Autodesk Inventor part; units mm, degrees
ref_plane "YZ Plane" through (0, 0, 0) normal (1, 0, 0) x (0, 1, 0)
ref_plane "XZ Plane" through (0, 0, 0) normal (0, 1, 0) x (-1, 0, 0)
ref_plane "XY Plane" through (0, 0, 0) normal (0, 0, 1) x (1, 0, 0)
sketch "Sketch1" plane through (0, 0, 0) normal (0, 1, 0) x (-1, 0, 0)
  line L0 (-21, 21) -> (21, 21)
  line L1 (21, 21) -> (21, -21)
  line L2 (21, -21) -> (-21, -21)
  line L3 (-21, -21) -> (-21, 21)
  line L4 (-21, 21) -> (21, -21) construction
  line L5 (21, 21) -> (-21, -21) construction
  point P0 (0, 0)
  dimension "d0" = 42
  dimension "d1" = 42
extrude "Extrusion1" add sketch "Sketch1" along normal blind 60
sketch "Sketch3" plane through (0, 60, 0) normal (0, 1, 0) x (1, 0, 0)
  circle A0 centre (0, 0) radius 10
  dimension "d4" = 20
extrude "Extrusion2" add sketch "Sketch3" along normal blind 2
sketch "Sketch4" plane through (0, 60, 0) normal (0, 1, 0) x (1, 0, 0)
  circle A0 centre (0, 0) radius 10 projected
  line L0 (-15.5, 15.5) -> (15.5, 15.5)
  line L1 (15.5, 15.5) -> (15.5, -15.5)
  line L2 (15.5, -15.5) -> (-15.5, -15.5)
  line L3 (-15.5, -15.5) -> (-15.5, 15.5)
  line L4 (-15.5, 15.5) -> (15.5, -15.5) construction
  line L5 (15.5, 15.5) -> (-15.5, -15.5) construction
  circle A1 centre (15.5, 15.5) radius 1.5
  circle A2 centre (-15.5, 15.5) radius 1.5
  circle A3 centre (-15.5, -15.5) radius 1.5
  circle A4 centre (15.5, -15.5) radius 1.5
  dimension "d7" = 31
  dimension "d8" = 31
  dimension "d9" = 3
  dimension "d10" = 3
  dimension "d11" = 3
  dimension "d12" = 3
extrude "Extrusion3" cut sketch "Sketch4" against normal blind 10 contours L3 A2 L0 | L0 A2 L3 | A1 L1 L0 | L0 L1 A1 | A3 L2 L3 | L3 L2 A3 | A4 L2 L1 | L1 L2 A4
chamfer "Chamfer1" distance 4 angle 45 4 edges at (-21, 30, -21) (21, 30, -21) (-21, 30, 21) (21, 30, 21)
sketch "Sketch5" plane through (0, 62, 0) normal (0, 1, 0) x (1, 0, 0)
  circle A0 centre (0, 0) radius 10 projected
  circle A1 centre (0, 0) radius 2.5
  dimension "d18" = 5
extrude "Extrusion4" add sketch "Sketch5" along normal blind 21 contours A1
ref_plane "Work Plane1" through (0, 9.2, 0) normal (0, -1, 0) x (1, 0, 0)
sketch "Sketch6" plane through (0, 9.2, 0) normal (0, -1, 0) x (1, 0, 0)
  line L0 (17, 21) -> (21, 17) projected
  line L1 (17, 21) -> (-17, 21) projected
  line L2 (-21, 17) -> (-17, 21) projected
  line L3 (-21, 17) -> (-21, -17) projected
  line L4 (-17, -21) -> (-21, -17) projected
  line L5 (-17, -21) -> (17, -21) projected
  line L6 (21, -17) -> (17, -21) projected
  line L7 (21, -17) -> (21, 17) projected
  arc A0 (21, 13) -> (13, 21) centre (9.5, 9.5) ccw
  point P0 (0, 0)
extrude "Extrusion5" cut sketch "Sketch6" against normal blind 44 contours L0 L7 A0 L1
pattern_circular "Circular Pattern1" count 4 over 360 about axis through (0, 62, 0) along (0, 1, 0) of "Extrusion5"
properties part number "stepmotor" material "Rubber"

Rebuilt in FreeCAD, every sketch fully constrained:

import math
import FreeCAD as App
import Part
import Sketcher

V = App.Vector
Q = App.Units.Quantity


def edges_at(feature, points):
    """Names of the edges that pass closest to the given points."""
    edges = feature.Shape.Edges
    near = lambda p: min(range(len(edges)), key=lambda i: edges[i].distToShape(Part.Vertex(*p))[0])
    return sorted({f"Edge{near(p) + 1}" for p in points})


def add_polygon(sketch, points):
    """Adds a closed chain of lines whose ends are joined by coincident constraints."""
    first, n = sketch.GeometryCount, len(points)
    for a, b in zip(points, points[1:] + points[:1]):
        sketch.addGeometry(Part.LineSegment(App.Vector(*a, 0), App.Vector(*b, 0)), False)
    for i in range(n):
        sketch.addConstraint(Sketcher.Constraint("Coincident", first + i, 2, first + (i + 1) % n, 1))

doc = App.newDocument("Part")
body = doc.addObject("PartDesign::Body", "Body")

# Sketch on XZ plane
sketch1 = body.newObject("Sketcher::SketchObject", "Sketch")
sketch1.AttachmentSupport = (doc.getObject("XZ_Plane"), [""])
sketch1.MapMode = "FlatFace"
add_polygon(sketch1, [(-21, 21), (21, 21), (21, -21), (-21, -21)])  # lines 0-3
sketch1.addConstraint([
    Sketcher.Constraint("Horizontal", 0),
    Sketcher.Constraint("Vertical", 1),
    Sketcher.Constraint("Horizontal", 2),
    Sketcher.Constraint("Vertical", 3),
    Sketcher.Constraint("Symmetric", 0, 2, 2, 2, -1, 1),
    Sketcher.Constraint("Equal", 2, 1),
    Sketcher.Constraint("DistanceX", 0, 1, 0, 2, 42.0),
])
pad1 = body.newObject("PartDesign::Pad", "Pad")
pad1.Profile = sketch1
pad1.Length = 60
pad1.Reversed = True

# Sketch on XZ plane
sketch2 = body.newObject("Sketcher::SketchObject", "Sketch001")
sketch2.AttachmentSupport = (doc.getObject("XZ_Plane"), [""])
sketch2.MapMode = "FlatFace"
sketch2.AttachmentOffset = App.Placement(V(0, 0, -60), App.Rotation())
sketch2.addGeometry(Part.Circle(V(0, 0, 0), V(0, 0, 1), 10), False)
sketch2.addConstraint([
    Sketcher.Constraint("Coincident", 0, 3, -1, 1),
    Sketcher.Constraint("Diameter", 0, 20.0),
])
pad2 = body.newObject("PartDesign::Pad", "Pad001")
pad2.Profile = sketch2
pad2.Length = 2
pad2.Reversed = True

# Sketch on XZ plane
sketch3 = body.newObject("Sketcher::SketchObject", "Sketch002")
sketch3.AttachmentSupport = (doc.getObject("XZ_Plane"), [""])
sketch3.MapMode = "FlatFace"
sketch3.AttachmentOffset = App.Placement(V(0, 0, -60), App.Rotation())
sketch3.addGeometry([
    Part.Circle(V(-15.5, -15.5, 0), V(0, 0, 1), 1.5),
    Part.Circle(V(15.5, -15.5, 0), V(0, 0, 1), 1.5),
    Part.Circle(V(-15.5, 15.5, 0), V(0, 0, 1), 1.5),
    Part.Circle(V(15.5, 15.5, 0), V(0, 0, 1), 1.5),
], False)
sketch3.addConstraint([
    Sketcher.Constraint("Equal", 0, 1),
    Sketcher.Constraint("Equal", 1, 2),
    Sketcher.Constraint("Equal", 2, 3),
    Sketcher.Constraint("Symmetric", 1, 3, 2, 3, -1, 1),
    Sketcher.Constraint("Symmetric", 0, 3, 3, 3, -1, 1),
    Sketcher.Constraint("Symmetric", 0, 3, 1, 3, -2),
    Sketcher.Constraint("Diameter", 0, 3.0),
    Sketcher.Constraint("DistanceX", 0, 3, 1, 3, 31.0),
    Sketcher.Constraint("DistanceY", 0, 3, 2, 3, 31.0),
])
pocket1 = body.newObject("PartDesign::Pocket", "Pocket")
pocket1.Profile = sketch3
pocket1.Length = 10
pocket1.Reversed = True
doc.recompute()

chamfer = body.newObject("PartDesign::Chamfer", "Chamfer")
chamfer.Base = (pocket1, edges_at(pocket1, [
    (-21, 30, -21),
    (21, 30, -21),
    (-21, 30, 21),
    (21, 30, 21),
]))
chamfer.Size = 4

# Sketch on XZ plane
sketch4 = body.newObject("Sketcher::SketchObject", "Sketch003")
sketch4.AttachmentSupport = (doc.getObject("XZ_Plane"), [""])
sketch4.MapMode = "FlatFace"
sketch4.AttachmentOffset = App.Placement(V(0, 0, -62), App.Rotation())
sketch4.addGeometry(Part.Circle(V(0, 0, 0), V(0, 0, 1), 2.5), False)
sketch4.addConstraint([
    Sketcher.Constraint("Coincident", 0, 3, -1, 1),
    Sketcher.Constraint("Diameter", 0, 5.0),
])
pad3 = body.newObject("PartDesign::Pad", "Pad002")
pad3.Profile = sketch4
pad3.Length = 21
pad3.Reversed = True

# Sketch on XZ plane
sketch5 = body.newObject("Sketcher::SketchObject", "Sketch004")
sketch5.AttachmentSupport = (doc.getObject("XZ_Plane"), [""])
sketch5.MapMode = "FlatFace"
sketch5.AttachmentOffset = App.Placement(V(0, 0, -9.2), App.Rotation())
sketch5.addGeometry([
    Part.LineSegment(V(21, 17, 0), V(17, 21, 0)),
    Part.LineSegment(V(17, 21, 0), V(13, 21, 0)),
    Part.ArcOfCircle(Part.Circle(V(9.5, 9.5, 0), V(0, 0, 1), 12), math.radians(17), math.radians(73)),
    Part.LineSegment(V(21, 13, 0), V(21, 17, 0)),
], False)
sketch5.addConstraint([
    Sketcher.Constraint("Coincident", 0, 2, 1, 1),
    Sketcher.Constraint("Coincident", 1, 2, 2, 2),
    Sketcher.Constraint("Coincident", 2, 1, 3, 1),
    Sketcher.Constraint("Coincident", 3, 2, 0, 1),
    Sketcher.Constraint("Horizontal", 1),
    Sketcher.Constraint("Vertical", 3),
    Sketcher.Constraint("Equal", 1, 3),
    Sketcher.Constraint("DistanceX", 1, 2, 1, 1, 4.0),
    Sketcher.Constraint("Angle", 0, Q("135 deg")),
    Sketcher.Constraint("DistanceX", -1, 1, 0, 2, 17.0),
    Sketcher.Constraint("DistanceY", -1, 1, 0, 2, 21.0),
    Sketcher.Constraint("DistanceX", -1, 1, 2, 1, 21.0),
    Sketcher.Constraint("DistanceX", -1, 1, 2, 3, 9.5),
])
pocket2 = body.newObject("PartDesign::Pocket", "Pocket001")
pocket2.Profile = sketch5
pocket2.Length = 44
doc.recompute()

polarpattern = body.newObject("PartDesign::PolarPattern", "PolarPattern")
polarpattern.Originals = [pocket2]
polarpattern.Axis = (doc.getObject("Y_Axis"), [""])
polarpattern.Angle = 360
polarpattern.Occurrences = 4
body.Tip = polarpattern

doc.recompute()
